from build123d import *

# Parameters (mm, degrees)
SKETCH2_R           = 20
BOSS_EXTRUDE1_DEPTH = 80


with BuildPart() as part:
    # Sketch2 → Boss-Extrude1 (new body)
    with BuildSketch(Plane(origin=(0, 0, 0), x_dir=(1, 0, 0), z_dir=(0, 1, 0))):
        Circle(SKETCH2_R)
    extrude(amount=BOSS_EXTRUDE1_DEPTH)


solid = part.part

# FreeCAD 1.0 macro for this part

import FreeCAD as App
import Part
import Sketcher
from FreeCAD import Vector
Q = App.Units.Quantity

doc = App.newDocument("Part")
body = doc.addObject("PartDesign::Body", "Body")

sketch1 = body.newObject("Sketcher::SketchObject", "Sketch")
sketch1.AttachmentSupport = (doc.getObject("XZ_Plane"), [""])
sketch1.MapMode = "FlatFace"
sketch1.addGeometry(Part.Circle(Vector(0, 0, 0), Vector(0, 0, 1), 20), False)
sketch1.addConstraint([
    Sketcher.Constraint("Coincident", 0, 3, -1, 1),
    Sketcher.Constraint("Diameter", 0, Q("40 mm")),
])
pad1 = body.newObject("PartDesign::Pad", "Pad")
pad1.Profile = sketch1
pad1.Length = 80
pad1.Reversed = True

doc.recompute()
